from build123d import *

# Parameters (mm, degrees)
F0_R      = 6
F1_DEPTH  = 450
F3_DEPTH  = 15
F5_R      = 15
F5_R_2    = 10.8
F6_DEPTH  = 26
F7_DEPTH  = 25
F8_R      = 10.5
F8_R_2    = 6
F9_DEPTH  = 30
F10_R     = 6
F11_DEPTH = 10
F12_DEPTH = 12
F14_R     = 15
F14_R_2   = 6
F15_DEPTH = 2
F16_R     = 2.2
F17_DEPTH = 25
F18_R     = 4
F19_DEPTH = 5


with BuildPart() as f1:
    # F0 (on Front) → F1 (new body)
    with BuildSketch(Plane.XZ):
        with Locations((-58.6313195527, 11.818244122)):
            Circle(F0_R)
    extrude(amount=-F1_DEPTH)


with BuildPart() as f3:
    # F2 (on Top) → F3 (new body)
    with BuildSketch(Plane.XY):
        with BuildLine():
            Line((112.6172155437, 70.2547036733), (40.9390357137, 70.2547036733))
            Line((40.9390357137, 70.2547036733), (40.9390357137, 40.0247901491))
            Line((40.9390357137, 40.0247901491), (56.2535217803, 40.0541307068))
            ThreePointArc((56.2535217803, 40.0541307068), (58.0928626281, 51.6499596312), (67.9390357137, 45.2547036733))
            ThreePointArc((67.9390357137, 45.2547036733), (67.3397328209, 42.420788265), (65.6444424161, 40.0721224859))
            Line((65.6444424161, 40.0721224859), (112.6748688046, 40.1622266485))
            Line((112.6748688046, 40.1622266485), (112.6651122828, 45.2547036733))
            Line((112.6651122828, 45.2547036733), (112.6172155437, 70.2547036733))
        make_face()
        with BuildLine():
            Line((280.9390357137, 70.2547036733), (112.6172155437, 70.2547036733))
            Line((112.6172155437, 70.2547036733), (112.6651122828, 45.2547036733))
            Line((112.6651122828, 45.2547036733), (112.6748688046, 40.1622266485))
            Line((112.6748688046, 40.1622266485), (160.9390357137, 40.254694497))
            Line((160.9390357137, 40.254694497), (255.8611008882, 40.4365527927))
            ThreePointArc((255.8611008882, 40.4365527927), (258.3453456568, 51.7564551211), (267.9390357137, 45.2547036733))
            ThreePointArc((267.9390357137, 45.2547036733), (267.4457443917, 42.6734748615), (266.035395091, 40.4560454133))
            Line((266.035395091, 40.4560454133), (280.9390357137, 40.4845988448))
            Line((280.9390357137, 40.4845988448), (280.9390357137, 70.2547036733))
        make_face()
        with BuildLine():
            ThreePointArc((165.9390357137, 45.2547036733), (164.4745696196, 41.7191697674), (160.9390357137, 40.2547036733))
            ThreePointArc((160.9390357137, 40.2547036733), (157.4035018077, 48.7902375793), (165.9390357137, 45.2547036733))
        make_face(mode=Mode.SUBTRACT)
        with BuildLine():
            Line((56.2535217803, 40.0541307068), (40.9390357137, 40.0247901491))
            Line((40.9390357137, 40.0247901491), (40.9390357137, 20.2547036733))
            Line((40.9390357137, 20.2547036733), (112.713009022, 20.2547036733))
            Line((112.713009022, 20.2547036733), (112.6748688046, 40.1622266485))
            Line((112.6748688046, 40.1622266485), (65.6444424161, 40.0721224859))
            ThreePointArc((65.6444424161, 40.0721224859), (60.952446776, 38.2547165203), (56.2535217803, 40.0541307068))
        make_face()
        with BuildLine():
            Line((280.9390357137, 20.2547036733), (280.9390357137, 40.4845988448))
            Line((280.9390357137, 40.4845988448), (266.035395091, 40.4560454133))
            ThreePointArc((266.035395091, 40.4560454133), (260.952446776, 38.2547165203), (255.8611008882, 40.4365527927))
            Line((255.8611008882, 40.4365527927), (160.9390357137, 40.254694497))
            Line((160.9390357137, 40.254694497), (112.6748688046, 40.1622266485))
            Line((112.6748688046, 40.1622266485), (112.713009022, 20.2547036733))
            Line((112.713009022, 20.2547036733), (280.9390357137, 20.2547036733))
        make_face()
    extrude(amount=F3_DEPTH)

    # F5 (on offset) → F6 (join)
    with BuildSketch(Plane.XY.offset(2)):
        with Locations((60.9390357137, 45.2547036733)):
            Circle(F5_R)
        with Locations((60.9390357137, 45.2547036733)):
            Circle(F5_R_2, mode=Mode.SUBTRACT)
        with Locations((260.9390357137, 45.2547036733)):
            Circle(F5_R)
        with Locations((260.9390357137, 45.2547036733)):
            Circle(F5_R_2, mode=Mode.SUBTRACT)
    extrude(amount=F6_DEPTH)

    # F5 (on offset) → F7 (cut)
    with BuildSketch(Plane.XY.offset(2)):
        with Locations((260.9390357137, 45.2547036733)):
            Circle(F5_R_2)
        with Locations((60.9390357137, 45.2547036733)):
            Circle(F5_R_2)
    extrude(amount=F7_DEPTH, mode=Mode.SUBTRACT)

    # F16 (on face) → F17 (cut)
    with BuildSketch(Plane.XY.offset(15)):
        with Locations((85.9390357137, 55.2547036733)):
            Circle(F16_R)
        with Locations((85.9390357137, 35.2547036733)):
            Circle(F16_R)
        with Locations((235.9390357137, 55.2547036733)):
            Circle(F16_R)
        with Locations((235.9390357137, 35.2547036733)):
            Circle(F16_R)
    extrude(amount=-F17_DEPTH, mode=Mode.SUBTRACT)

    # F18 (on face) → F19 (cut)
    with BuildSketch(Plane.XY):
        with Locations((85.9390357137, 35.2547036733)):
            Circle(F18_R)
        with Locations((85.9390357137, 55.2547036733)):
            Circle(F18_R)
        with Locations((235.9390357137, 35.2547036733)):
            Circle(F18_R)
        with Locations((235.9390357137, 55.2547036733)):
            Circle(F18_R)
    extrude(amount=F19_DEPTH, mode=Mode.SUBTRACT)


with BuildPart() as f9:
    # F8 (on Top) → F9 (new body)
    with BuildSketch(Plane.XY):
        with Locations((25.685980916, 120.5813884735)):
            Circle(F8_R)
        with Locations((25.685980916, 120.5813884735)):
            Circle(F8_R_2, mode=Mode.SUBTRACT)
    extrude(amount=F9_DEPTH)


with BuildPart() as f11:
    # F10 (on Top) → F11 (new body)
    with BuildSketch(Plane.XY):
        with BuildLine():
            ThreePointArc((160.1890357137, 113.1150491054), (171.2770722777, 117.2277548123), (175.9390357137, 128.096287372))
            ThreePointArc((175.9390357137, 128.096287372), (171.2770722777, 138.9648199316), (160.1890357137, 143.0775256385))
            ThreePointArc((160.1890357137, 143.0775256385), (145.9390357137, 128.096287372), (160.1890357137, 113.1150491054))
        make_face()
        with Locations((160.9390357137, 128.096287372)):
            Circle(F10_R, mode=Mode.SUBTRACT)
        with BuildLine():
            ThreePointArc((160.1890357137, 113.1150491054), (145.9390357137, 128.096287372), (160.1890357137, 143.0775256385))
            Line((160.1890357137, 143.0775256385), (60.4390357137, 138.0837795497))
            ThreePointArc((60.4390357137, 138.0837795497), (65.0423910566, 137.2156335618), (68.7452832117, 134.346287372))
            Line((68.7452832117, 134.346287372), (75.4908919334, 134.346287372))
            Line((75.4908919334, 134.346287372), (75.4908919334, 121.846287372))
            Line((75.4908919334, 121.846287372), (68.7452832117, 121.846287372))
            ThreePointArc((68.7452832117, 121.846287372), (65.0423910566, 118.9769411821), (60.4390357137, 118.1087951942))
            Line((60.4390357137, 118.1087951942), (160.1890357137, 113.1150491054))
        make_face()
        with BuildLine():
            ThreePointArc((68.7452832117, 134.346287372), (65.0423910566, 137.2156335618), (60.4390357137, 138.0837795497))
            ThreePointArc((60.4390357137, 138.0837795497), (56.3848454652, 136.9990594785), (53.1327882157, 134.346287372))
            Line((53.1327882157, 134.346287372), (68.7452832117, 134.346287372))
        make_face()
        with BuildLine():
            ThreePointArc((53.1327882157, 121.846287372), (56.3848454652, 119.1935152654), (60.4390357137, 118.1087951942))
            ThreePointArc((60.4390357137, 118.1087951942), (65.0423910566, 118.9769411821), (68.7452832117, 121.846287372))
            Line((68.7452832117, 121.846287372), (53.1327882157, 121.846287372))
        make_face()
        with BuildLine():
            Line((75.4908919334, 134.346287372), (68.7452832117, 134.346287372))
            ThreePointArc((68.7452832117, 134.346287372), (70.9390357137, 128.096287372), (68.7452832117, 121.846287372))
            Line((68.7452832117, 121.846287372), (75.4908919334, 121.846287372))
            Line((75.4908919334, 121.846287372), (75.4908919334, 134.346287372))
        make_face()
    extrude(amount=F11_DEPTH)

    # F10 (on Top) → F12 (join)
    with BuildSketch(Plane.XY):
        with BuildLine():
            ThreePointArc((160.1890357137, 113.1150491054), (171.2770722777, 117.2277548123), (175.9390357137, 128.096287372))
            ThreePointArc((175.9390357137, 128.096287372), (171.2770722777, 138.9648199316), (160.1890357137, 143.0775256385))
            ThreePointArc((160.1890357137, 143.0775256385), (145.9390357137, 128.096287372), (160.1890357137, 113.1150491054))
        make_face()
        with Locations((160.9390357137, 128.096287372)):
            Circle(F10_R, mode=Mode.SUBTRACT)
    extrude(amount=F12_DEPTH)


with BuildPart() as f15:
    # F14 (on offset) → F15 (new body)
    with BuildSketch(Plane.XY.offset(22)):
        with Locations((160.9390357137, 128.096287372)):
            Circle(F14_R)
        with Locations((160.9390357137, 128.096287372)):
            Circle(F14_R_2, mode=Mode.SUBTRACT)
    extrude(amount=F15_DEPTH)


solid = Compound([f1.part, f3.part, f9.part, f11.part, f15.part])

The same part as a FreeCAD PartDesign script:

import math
import FreeCAD as App
import Part
import Sketcher
from FreeCAD import Vector

doc = App.newDocument("Part")
params = doc.addObject("Spreadsheet::Sheet", "Params")
for row, (alias, value) in enumerate([
    ("sketch1_diameter", "12 mm"),
    ("pad1_length", "450 mm"),
    ("sketch2_diameter", "14 mm"),
    ("sketch2_radius", "5 mm"),
    ("sketch2_width", "240 mm"),
    ("sketch2_height", "50 mm"),
    ("pad2_length", "15 mm"),
    ("sketch3_diameter", "30 mm"),
    ("sketch3_diameter2", "21.6 mm"),
    ("pad3_length", "26 mm"),
    ("sketch4_diameter", "21.6 mm"),
    ("pocket1_length", "25 mm"),
    ("sketch5_diameter", "4.4 mm"),
    ("pocket2_length", "25 mm"),
    ("sketch6_diameter", "8 mm"),
    ("pocket3_length", "5 mm"),
    ("sketch7_diameter", "21 mm"),
    ("sketch7_diameter2", "12 mm"),
    ("pad4_length", "30 mm"),
    ("sketch8_diameter", "12 mm"),
    ("sketch8_radius", "15 mm"),
    ("sketch8_radius2", "10 mm"),
    ("pad5_length", "10 mm"),
    ("sketch9_diameter", "12 mm"),
    ("sketch9_radius", "15 mm"),
    ("pad6_length", "12 mm"),
    ("sketch10_diameter", "30 mm"),
    ("sketch10_diameter2", "12 mm"),
    ("pad7_length", "2 mm"),
], start=1):
    params.set(f"A{row}", alias)
    params.set(f"B{row}", "=" + value)
    params.setAlias(f"B{row}", alias)

body = doc.addObject("PartDesign::Body", "Body")

# Sketch on XZ plane
sketch1 = body.newObject("Sketcher::SketchObject", "Sketch")
sketch1.AttachmentSupport = (doc.getObject("XZ_Plane"), [""])
sketch1.MapMode = "FlatFace"
sketch1.addGeometry(Part.Circle(Vector(-59, 12, 0), Vector(0, 0, 1), 6), False)
sketch1.addConstraint([
    Sketcher.Constraint("Diameter", 0, 12.0),
    Sketcher.Constraint("DistanceX", 0, 3, -1, 1, 58.63132),
    Sketcher.Constraint("DistanceY", -1, 1, 0, 3, 11.818244),
])
sketch1.setExpression("Constraints[0]", "Params.sketch1_diameter")
pad1 = body.newObject("PartDesign::Pad", "Pad")
pad1.Profile = sketch1
pad1.setExpression("Length", "Params.pad1_length")
pad1.Reversed = True
body2 = doc.addObject("PartDesign::Body", "Body001")

# Sketch on XY plane
sketch2 = body2.newObject("Sketcher::SketchObject", "Sketch001")
sketch2.AttachmentSupport = (doc.getObject("XY_Plane001"), [""])
sketch2.MapMode = "FlatFace"
sketch2.addGeometry([
    Part.LineSegment(Vector(41, 20, 0), Vector(281, 20, 0)),  # 0
    Part.LineSegment(Vector(281, 20, 0), Vector(281, 70, 0)),  # 1
    Part.LineSegment(Vector(281, 70, 0), Vector(41, 70, 0)),  # 2
    Part.LineSegment(Vector(41, 70, 0), Vector(41, 20, 0)),  # 3
    Part.ArcOfCircle(Part.Circle(Vector(261, 45, 0), Vector(0, 0, 1), 7), math.radians(-43), math.radians(0)),  # 4
    Part.ArcOfCircle(Part.Circle(Vector(261, 45, 0), Vector(0, 0, 1), 7), math.radians(-137), math.radians(-43)),  # 5
    Part.ArcOfCircle(Part.Circle(Vector(261, 45, 0), Vector(0, 0, 1), 7), math.radians(0), math.radians(223)),  # 6
    Part.Circle(Vector(61, 45, 0), Vector(0, 0, 1), 7),  # 7
    Part.ArcOfCircle(Part.Circle(Vector(161, 45, 0), Vector(0, 0, 1), 5), math.radians(-90), math.radians(0)),  # 8
    Part.ArcOfCircle(Part.Circle(Vector(161, 45, 0), Vector(0, 0, 1), 5), math.radians(0), math.radians(270)),  # 9
], False)
sketch2.addConstraint([
    Sketcher.Constraint("Coincident", 0, 2, 1, 1),
    Sketcher.Constraint("Coincident", 1, 2, 2, 1),
    Sketcher.Constraint("Coincident", 2, 2, 3, 1),
    Sketcher.Constraint("Coincident", 3, 2, 0, 1),
    Sketcher.Constraint("Tangent", 4, 1, 5, 2),
    Sketcher.Constraint("Tangent", 5, 1, 6, 2),
    Sketcher.Constraint("Tangent", 6, 1, 4, 2),
    Sketcher.Constraint("Tangent", 8, 1, 9, 2),
    Sketcher.Constraint("Coincident", 9, 1, 8, 2),
    Sketcher.Constraint("Horizontal", 0),
    Sketcher.Constraint("Vertical", 1),
    Sketcher.Constraint("Horizontal", 2),
    Sketcher.Constraint("Vertical", 3),
    Sketcher.Constraint("Equal", 6, 7),
    Sketcher.Constraint("Horizontal", 6, 3, 7, 3),
    Sketcher.Constraint("Horizontal", 7, 3, 8, 3),
    Sketcher.Constraint("Horizontal", 9, 3, 6, 1),
    Sketcher.Constraint("Horizontal", 6, 1, 9, 1),
    Sketcher.Constraint("Vertical", 9, 3, 8, 1),
    Sketcher.Constraint("Diameter", 7, 14.0),
    Sketcher.Constraint("Radius", 8, 5.0),
    Sketcher.Constraint("DistanceX", 0, 1, 0, 2, 240.0),
    Sketcher.Constraint("DistanceY", 1, 1, 1, 2, 50.0),
    Sketcher.Constraint("DistanceX", 7, 3, 4, 3, 200.0),
    Sketcher.Constraint("DistanceX", 8, 3, 4, 3, 100.0),
    Sketcher.Constraint("DistanceX", 4, 3, 0, 2, 20.0),
    Sketcher.Constraint("DistanceY", 0, 2, 4, 3, 25.0),
    Sketcher.Constraint("DistanceX", -1, 1, 5, 1, 255.861101),
    Sketcher.Constraint("DistanceX", 4, 3, 4, 1, 5.096359),
    Sketcher.Constraint("DistanceY", 5, 1, 4, 3, 4.818151),
    Sketcher.Constraint("DistanceY", -1, 1, 4, 3, 45.254704),
])
sketch2.setExpression("Constraints[19]", "Params.sketch2_diameter")
sketch2.setExpression("Constraints[20]", "Params.sketch2_radius")
sketch2.setExpression("Constraints[21]", "Params.sketch2_width")
sketch2.setExpression("Constraints[22]", "Params.sketch2_height")
pad2 = body2.newObject("PartDesign::Pad", "Pad001")
pad2.Profile = sketch2
pad2.setExpression("Length", "Params.pad2_length")

# Sketch on XY plane
sketch3 = body2.newObject("Sketcher::SketchObject", "Sketch002")
sketch3.AttachmentSupport = (doc.getObject("XY_Plane001"), [""])
sketch3.MapMode = "FlatFace"
sketch3.AttachmentOffset = App.Placement(Vector(0, 0, 2), App.Rotation())
sketch3.addGeometry([
    Part.Circle(Vector(61, 45, 0), Vector(0, 0, 1), 15),
    Part.Circle(Vector(61, 45, 0), Vector(0, 0, 1), 11),
    Part.Circle(Vector(261, 45, 0), Vector(0, 0, 1), 15),
    Part.Circle(Vector(261, 45, 0), Vector(0, 0, 1), 11),
], False)
sketch3.addConstraint([
    Sketcher.Constraint("Coincident", 1, 3, 0, 3),
    Sketcher.Constraint("Coincident", 3, 3, 2, 3),
    Sketcher.Constraint("Equal", 0, 2),
    Sketcher.Constraint("Equal", 1, 3),
    Sketcher.Constraint("Horizontal", 1, 3, 2, 3),
    Sketcher.Constraint("Diameter", 0, 30.0),
    Sketcher.Constraint("Diameter", 1, 21.6),
    Sketcher.Constraint("DistanceX", 0, 3, 2, 3, 200.0),
    Sketcher.Constraint("DistanceX", -1, 1, 0, 3, 60.939036),
    Sketcher.Constraint("DistanceY", -1, 1, 0, 3, 45.254704),
])
sketch3.setExpression("Constraints[5]", "Params.sketch3_diameter")
sketch3.setExpression("Constraints[6]", "Params.sketch3_diameter2")
pad3 = body2.newObject("PartDesign::Pad", "Pad002")
pad3.Profile = sketch3
pad3.setExpression("Length", "Params.pad3_length")

# Sketch on XY plane
sketch4 = body2.newObject("Sketcher::SketchObject", "Sketch003")
sketch4.AttachmentSupport = (doc.getObject("XY_Plane001"), [""])
sketch4.MapMode = "FlatFace"
sketch4.AttachmentOffset = App.Placement(Vector(0, 0, 2), App.Rotation())
sketch4.addGeometry([
    Part.Circle(Vector(261, 45, 0), Vector(0, 0, 1), 11),
    Part.Circle(Vector(61, 45, 0), Vector(0, 0, 1), 11),
], False)
sketch4.addConstraint([
    Sketcher.Constraint("Equal", 0, 1),
    Sketcher.Constraint("Horizontal", 0, 3, 1, 3),
    Sketcher.Constraint("Diameter", 0, 21.6),
    Sketcher.Constraint("DistanceX", 1, 3, 0, 3, 200.0),
    Sketcher.Constraint("DistanceX", -1, 1, 0, 3, 260.939036),
    Sketcher.Constraint("DistanceY", -1, 1, 0, 3, 45.254704),
])
sketch4.setExpression("Constraints[2]", "Params.sketch4_diameter")
pocket1 = body2.newObject("PartDesign::Pocket", "Pocket")
pocket1.Profile = sketch4
pocket1.setExpression("Length", "Params.pocket1_length")
pocket1.Reversed = True

# Sketch on XY plane
sketch5 = body2.newObject("Sketcher::SketchObject", "Sketch004")
sketch5.AttachmentSupport = (doc.getObject("XY_Plane001"), [""])
sketch5.MapMode = "FlatFace"
sketch5.AttachmentOffset = App.Placement(Vector(0, 0, 15), App.Rotation())
sketch5.addGeometry([
    Part.Circle(Vector(85.9, 55.3, 0), Vector(0, 0, 1), 2.2),
    Part.Circle(Vector(85.9, 35.3, 0), Vector(0, 0, 1), 2.2),
    Part.Circle(Vector(235.9, 55.3, 0), Vector(0, 0, 1), 2.2),
    Part.Circle(Vector(235.9, 35.3, 0), Vector(0, 0, 1), 2.2),
], False)
sketch5.addConstraint([
    Sketcher.Constraint("Equal", 0, 1),
    Sketcher.Constraint("Equal", 1, 2),
    Sketcher.Constraint("Equal", 2, 3),
    Sketcher.Constraint("Horizontal", 0, 3, 2, 3),
    Sketcher.Constraint("Horizontal", 1, 3, 3, 3),
    Sketcher.Constraint("Vertical", 0, 3, 1, 3),
    Sketcher.Constraint("Vertical", 2, 3, 3, 3),
    Sketcher.Constraint("Diameter", 0, 4.4),
    Sketcher.Constraint("DistanceY", 1, 3, 0, 3, 20.0),
    Sketcher.Constraint("DistanceX", 0, 3, 2, 3, 150.0),
    Sketcher.Constraint("DistanceX", -1, 1, 0, 3, 85.939036),
    Sketcher.Constraint("DistanceY", -1, 1, 0, 3, 55.254704),
])
sketch5.setExpression("Constraints[7]", "Params.sketch5_diameter")
pocket2 = body2.newObject("PartDesign::Pocket", "Pocket001")
pocket2.Profile = sketch5
pocket2.setExpression("Length", "Params.pocket2_length")

# Sketch on XY plane
sketch6 = body2.newObject("Sketcher::SketchObject", "Sketch005")
sketch6.AttachmentSupport = (doc.getObject("XY_Plane001"), [""])
sketch6.MapMode = "FlatFace"
sketch6.addGeometry([
    Part.Circle(Vector(85.9, 35.3, 0), Vector(0, 0, 1), 4),
    Part.Circle(Vector(85.9, 55.3, 0), Vector(0, 0, 1), 4),
    Part.Circle(Vector(235.9, 35.3, 0), Vector(0, 0, 1), 4),
    Part.Circle(Vector(235.9, 55.3, 0), Vector(0, 0, 1), 4),
], False)
sketch6.addConstraint([
    Sketcher.Constraint("Equal", 0, 1),
    Sketcher.Constraint("Equal", 1, 2),
    Sketcher.Constraint("Equal", 2, 3),
    Sketcher.Constraint("Horizontal", 0, 3, 2, 3),
    Sketcher.Constraint("Horizontal", 1, 3, 3, 3),
    Sketcher.Constraint("Vertical", 0, 3, 1, 3),
    Sketcher.Constraint("Vertical", 2, 3, 3, 3),
    Sketcher.Constraint("Diameter", 0, 8.0),
    Sketcher.Constraint("DistanceY", 0, 3, 1, 3, 20.0),
    Sketcher.Constraint("DistanceX", 0, 3, 2, 3, 150.0),
    Sketcher.Constraint("DistanceX", -1, 1, 0, 3, 85.939036),
    Sketcher.Constraint("DistanceY", -1, 1, 0, 3, 35.254704),
])
sketch6.setExpression("Constraints[7]", "Params.sketch6_diameter")
pocket3 = body2.newObject("PartDesign::Pocket", "Pocket002")
pocket3.Profile = sketch6
pocket3.setExpression("Length", "Params.pocket3_length")
pocket3.Reversed = True
body3 = doc.addObject("PartDesign::Body", "Body002")

# Sketch on XY plane
sketch7 = body3.newObject("Sketcher::SketchObject", "Sketch006")
sketch7.AttachmentSupport = (doc.getObject("XY_Plane002"), [""])
sketch7.MapMode = "FlatFace"
sketch7.addGeometry([
    Part.Circle(Vector(26, 121, 0), Vector(0, 0, 1), 10),
    Part.Circle(Vector(26, 121, 0), Vector(0, 0, 1), 6),
], False)
sketch7.addConstraint([
    Sketcher.Constraint("Coincident", 1, 3, 0, 3),
    Sketcher.Constraint("Diameter", 0, 21.0),
    Sketcher.Constraint("Diameter", 1, 12.0),
    Sketcher.Constraint("DistanceX", -1, 1, 0, 3, 25.685981),
    Sketcher.Constraint("DistanceY", -1, 1, 0, 3, 120.581388),
])
sketch7.setExpression("Constraints[1]", "Params.sketch7_diameter")
sketch7.setExpression("Constraints[2]", "Params.sketch7_diameter2")
pad4 = body3.newObject("PartDesign::Pad", "Pad003")
pad4.Profile = sketch7
pad4.setExpression("Length", "Params.pad4_length")
body4 = doc.addObject("PartDesign::Body", "Body003")

# Sketch on XY plane
sketch8 = body4.newObject("Sketcher::SketchObject", "Sketch007")
sketch8.AttachmentSupport = (doc.getObject("XY_Plane003"), [""])
sketch8.MapMode = "FlatFace"
sketch8.addGeometry([
    Part.ArcOfCircle(Part.Circle(Vector(161, 128, 0), Vector(0, 0, 1), 15), math.radians(-93), math.radians(0)),  # 0
    Part.ArcOfCircle(Part.Circle(Vector(161, 128, 0), Vector(0, 0, 1), 15), math.radians(0), math.radians(93)),  # 1
    Part.LineSegment(Vector(160, 143, 0), Vector(60, 138, 0)),  # 2
    Part.ArcOfCircle(Part.Circle(Vector(61, 128, 0), Vector(0, 0, 1), 10), math.radians(93), math.radians(141)),  # 3
    Part.LineSegment(Vector(53, 134, 0), Vector(69, 134, 0)),  # 4
    Part.ArcOfCircle(Part.Circle(Vector(61, 128, 0), Vector(0, 0, 1), 10), math.radians(-39), math.radians(39)),  # 5
    Part.LineSegment(Vector(69, 122, 0), Vector(53, 122, 0)),  # 6
    Part.ArcOfCircle(Part.Circle(Vector(61, 128, 0), Vector(0, 0, 1), 10), math.radians(-141), math.radians(-93)),  # 7
    Part.LineSegment(Vector(60, 118, 0), Vector(160, 113, 0)),  # 8
    Part.Circle(Vector(161, 128, 0), Vector(0, 0, 1), 6),  # 9
], False)
sketch8.addConstraint([
    Sketcher.Constraint("Tangent", 0, 2, 1, 1),
    Sketcher.Constraint("Tangent", 1, 2, 2, 1),
    Sketcher.Constraint("Tangent", 2, 2, 3, 1),
    Sketcher.Constraint("Coincident", 3, 2, 4, 1),
    Sketcher.Constraint("Coincident", 4, 2, 5, 2),
    Sketcher.Constraint("Coincident", 5, 1, 6, 1),
    Sketcher.Constraint("Coincident", 6, 2, 7, 1),
    Sketcher.Constraint("Tangent", 7, 2, 8, 1),
    Sketcher.Constraint("Tangent", 8, 2, 0, 1),
    Sketcher.Constraint("Horizontal", 4),
    Sketcher.Constraint("Horizontal", 6),
    Sketcher.Constraint("Coincident", 5, 3, 3, 3),
    Sketcher.Constraint("Coincident", 7, 3, 3, 3),
    Sketcher.Constraint("Coincident", 9, 3, 0, 3),
    Sketcher.Constraint("Equal", 0, 1),
    Sketcher.Constraint("Equal", 3, 5),
    Sketcher.Constraint("Equal", 5, 7),
    Sketcher.Constraint("Horizontal", 1, 3, 3, 3),
    Sketcher.Constraint("Horizontal", 9, 3, 0, 2),
    Sketcher.Constraint("Vertical", 4, 2, 5, 1),
    Sketcher.Constraint("Diameter", 9, 12.0),
    Sketcher.Constraint("Radius", 0, 15.0),
    Sketcher.Constraint("Radius", 3, 10.0),
    Sketcher.Constraint("DistanceX", 3, 3, 0, 3, 100.0),
    Sketcher.Constraint("DistanceY", 5, 1, 4, 2, 12.5),
    Sketcher.Constraint("DistanceY", -1, 1, 2, 2, 138.08378),
    Sketcher.Constraint("DistanceX", -1, 1, 3, 2, 53.132788),
])
sketch8.setExpression("Constraints[20]", "Params.sketch8_diameter")
sketch8.setExpression("Constraints[21]", "Params.sketch8_radius")
sketch8.setExpression("Constraints[22]", "Params.sketch8_radius2")
pad5 = body4.newObject("PartDesign::Pad", "Pad004")
pad5.Profile = sketch8
pad5.setExpression("Length", "Params.pad5_length")

# Sketch on XY plane
sketch9 = body4.newObject("Sketcher::SketchObject", "Sketch008")
sketch9.AttachmentSupport = (doc.getObject("XY_Plane003"), [""])
sketch9.MapMode = "FlatFace"
sketch9.addGeometry([
    Part.ArcOfCircle(Part.Circle(Vector(161, 128, 0), Vector(0, 0, 1), 15), math.radians(-93), math.radians(0)),
    Part.ArcOfCircle(Part.Circle(Vector(161, 128, 0), Vector(0, 0, 1), 15), math.radians(0), math.radians(93)),
    Part.ArcOfCircle(Part.Circle(Vector(161, 128, 0), Vector(0, 0, 1), 15), math.radians(93), math.radians(267)),
    Part.Circle(Vector(161, 128, 0), Vector(0, 0, 1), 6),
], False)
sketch9.addConstraint([
    Sketcher.Constraint("Tangent", 0, 2, 1, 1),
    Sketcher.Constraint("Tangent", 1, 2, 2, 1),
    Sketcher.Constraint("Tangent", 2, 2, 0, 1),
    Sketcher.Constraint("Coincident", 3, 3, 0, 3),
    Sketcher.Constraint("Horizontal", 3, 3, 0, 2),
    Sketcher.Constraint("Vertical", 1, 2, 2, 2),
    Sketcher.Constraint("Diameter", 3, 12.0),
    Sketcher.Constraint("Radius", 0, 15.0),
    Sketcher.Constraint("DistanceX", 1, 2, 0, 3, 0.75),
    Sketcher.Constraint("DistanceY", -1, 1, 2, 2, 113.115049),
    Sketcher.Constraint("DistanceX", -1, 1, 0, 3, 160.939036),
])
sketch9.setExpression("Constraints[6]", "Params.sketch9_diameter")
sketch9.setExpression("Constraints[7]", "Params.sketch9_radius")
pad6 = body4.newObject("PartDesign::Pad", "Pad005")
pad6.Profile = sketch9
pad6.setExpression("Length", "Params.pad6_length")
body5 = doc.addObject("PartDesign::Body", "Body004")

# Sketch on XY plane
sketch10 = body5.newObject("Sketcher::SketchObject", "Sketch009")
sketch10.AttachmentSupport = (doc.getObject("XY_Plane004"), [""])
sketch10.MapMode = "FlatFace"
sketch10.AttachmentOffset = App.Placement(Vector(0, 0, 22), App.Rotation())
sketch10.addGeometry([
    Part.Circle(Vector(161, 128, 0), Vector(0, 0, 1), 15),
    Part.Circle(Vector(161, 128, 0), Vector(0, 0, 1), 6),
], False)
sketch10.addConstraint([
    Sketcher.Constraint("Coincident", 1, 3, 0, 3),
    Sketcher.Constraint("Diameter", 0, 30.0),
    Sketcher.Constraint("Diameter", 1, 12.0),
    Sketcher.Constraint("DistanceX", -1, 1, 0, 3, 160.939036),
    Sketcher.Constraint("DistanceY", -1, 1, 0, 3, 128.096287),
])
sketch10.setExpression("Constraints[1]", "Params.sketch10_diameter")
sketch10.setExpression("Constraints[2]", "Params.sketch10_diameter2")
pad7 = body5.newObject("PartDesign::Pad", "Pad006")
pad7.Profile = sketch10
pad7.setExpression("Length", "Params.pad7_length")

doc.recompute()
